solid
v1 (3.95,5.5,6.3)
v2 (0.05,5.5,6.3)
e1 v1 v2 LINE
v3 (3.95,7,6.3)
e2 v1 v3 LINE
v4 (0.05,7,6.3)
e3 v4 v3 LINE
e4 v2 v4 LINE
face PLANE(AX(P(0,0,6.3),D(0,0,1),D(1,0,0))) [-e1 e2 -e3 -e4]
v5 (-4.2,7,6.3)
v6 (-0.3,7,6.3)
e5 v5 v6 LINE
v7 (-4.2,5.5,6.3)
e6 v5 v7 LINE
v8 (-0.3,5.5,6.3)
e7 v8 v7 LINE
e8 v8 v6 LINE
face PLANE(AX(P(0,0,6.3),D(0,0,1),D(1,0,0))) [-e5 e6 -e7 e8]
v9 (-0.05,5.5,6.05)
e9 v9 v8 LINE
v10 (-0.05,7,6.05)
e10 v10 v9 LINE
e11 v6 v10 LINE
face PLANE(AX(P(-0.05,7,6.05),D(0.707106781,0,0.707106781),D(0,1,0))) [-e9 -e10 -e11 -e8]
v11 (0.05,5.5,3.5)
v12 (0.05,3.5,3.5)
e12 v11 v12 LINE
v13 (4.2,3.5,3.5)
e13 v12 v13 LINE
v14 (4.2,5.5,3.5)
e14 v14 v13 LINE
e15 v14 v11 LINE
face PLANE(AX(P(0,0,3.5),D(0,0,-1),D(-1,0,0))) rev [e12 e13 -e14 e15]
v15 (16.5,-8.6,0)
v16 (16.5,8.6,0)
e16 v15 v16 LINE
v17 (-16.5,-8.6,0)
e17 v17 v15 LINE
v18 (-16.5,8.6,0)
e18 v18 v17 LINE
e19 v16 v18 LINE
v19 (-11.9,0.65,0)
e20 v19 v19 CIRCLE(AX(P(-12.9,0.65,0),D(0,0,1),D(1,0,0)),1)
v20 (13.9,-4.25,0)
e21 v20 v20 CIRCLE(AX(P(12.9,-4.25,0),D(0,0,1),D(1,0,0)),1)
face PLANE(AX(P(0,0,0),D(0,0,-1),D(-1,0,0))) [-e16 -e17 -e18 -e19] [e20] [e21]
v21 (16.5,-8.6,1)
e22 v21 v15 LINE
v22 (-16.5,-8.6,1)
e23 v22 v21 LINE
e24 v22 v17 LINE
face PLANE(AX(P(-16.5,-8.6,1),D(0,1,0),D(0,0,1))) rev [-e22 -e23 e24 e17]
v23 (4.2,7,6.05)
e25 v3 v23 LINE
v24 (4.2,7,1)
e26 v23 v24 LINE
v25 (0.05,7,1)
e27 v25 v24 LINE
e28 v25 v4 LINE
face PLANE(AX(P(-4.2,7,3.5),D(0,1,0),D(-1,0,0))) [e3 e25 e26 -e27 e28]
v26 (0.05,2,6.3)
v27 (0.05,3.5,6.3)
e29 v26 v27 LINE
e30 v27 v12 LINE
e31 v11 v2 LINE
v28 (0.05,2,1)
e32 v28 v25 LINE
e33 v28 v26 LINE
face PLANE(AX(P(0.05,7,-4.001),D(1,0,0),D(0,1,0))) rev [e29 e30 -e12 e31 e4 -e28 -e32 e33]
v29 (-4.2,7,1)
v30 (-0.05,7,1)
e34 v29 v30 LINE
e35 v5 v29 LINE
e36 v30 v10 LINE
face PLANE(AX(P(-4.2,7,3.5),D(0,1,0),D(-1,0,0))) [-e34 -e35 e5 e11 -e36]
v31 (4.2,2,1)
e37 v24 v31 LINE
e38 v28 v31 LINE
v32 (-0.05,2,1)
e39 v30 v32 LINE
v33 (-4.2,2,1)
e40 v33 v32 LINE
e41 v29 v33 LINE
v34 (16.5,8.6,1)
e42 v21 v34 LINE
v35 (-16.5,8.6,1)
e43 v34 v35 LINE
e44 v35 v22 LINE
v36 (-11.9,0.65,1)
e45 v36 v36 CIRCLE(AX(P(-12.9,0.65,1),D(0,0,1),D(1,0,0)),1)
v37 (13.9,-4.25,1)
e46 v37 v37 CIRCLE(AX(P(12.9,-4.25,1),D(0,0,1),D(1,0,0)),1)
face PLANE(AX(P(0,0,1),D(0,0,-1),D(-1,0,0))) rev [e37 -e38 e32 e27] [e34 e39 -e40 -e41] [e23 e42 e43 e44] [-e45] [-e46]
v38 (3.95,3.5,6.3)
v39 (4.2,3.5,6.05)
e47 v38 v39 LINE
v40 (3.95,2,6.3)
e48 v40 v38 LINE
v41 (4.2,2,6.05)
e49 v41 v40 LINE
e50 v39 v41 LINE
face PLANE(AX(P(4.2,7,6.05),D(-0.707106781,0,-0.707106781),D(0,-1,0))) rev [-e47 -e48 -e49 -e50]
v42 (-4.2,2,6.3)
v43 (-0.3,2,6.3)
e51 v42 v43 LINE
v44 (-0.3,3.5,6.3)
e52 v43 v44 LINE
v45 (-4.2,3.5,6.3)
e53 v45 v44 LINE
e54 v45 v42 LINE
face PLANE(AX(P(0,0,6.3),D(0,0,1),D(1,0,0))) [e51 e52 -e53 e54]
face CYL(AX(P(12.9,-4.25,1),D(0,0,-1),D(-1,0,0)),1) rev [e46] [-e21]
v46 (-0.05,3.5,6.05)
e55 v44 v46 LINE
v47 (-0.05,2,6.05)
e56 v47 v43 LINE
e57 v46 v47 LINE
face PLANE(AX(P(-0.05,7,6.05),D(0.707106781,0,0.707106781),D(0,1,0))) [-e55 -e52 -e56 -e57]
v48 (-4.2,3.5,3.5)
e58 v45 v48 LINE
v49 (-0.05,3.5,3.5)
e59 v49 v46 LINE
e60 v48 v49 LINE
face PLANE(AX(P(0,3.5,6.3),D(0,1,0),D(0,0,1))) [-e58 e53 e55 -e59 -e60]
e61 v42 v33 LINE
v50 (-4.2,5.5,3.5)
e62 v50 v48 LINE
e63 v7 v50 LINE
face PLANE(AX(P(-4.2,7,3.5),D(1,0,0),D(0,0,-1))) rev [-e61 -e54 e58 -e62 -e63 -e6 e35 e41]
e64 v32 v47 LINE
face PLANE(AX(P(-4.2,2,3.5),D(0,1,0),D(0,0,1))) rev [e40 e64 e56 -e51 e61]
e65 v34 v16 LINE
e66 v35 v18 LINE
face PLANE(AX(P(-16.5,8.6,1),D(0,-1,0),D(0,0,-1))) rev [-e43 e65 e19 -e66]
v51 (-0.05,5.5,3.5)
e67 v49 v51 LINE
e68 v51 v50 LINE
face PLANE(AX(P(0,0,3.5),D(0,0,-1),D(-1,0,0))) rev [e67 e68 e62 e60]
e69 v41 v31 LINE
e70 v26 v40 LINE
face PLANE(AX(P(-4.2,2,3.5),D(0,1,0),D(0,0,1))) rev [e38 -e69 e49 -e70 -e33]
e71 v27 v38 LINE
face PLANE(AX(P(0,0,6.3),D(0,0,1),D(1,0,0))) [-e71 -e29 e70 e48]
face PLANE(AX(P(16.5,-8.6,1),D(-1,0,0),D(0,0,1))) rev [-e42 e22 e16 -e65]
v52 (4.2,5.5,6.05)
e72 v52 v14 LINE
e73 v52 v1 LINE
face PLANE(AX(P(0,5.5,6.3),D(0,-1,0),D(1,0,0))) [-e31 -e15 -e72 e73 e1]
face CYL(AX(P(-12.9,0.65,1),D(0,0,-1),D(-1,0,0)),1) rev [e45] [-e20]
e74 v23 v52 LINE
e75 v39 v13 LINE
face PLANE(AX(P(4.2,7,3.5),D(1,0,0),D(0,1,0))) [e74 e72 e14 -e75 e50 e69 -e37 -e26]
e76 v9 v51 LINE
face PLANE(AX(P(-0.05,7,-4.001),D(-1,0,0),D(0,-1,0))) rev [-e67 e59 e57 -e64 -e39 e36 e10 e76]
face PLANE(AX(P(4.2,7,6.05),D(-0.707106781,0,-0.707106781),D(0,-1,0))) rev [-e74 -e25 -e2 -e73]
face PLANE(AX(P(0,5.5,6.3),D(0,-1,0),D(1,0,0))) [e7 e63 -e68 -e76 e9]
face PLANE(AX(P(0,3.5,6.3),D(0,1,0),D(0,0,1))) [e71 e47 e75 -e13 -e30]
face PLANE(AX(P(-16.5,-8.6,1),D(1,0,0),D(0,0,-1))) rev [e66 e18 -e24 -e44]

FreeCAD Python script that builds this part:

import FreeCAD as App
import Part
import Sketcher

V = App.Vector


def edges_at(feature, points):
    """Names of the edges that pass closest to the given points."""
    edges = feature.Shape.Edges
    near = lambda p: min(range(len(edges)), key=lambda i: edges[i].distToShape(Part.Vertex(*p))[0])
    return sorted({f"Edge{near(p) + 1}" for p in points})


def add_polygon(sketch, points):
    """Adds a closed chain of lines whose ends are joined by coincident constraints."""
    first, n = sketch.GeometryCount, len(points)
    for a, b in zip(points, points[1:] + points[:1]):
        sketch.addGeometry(Part.LineSegment(App.Vector(*a, 0), App.Vector(*b, 0)), False)
    for i in range(n):
        sketch.addConstraint(Sketcher.Constraint("Coincident", first + i, 2, first + (i + 1) % n, 1))

doc = App.newDocument("Part")
body = doc.addObject("PartDesign::Body", "Body")

# Sketch on XY plane
sketch1 = body.newObject("Sketcher::SketchObject", "Sketch")
sketch1.AttachmentSupport = (doc.getObject("XY_Plane"), [""])
sketch1.MapMode = "FlatFace"
add_polygon(sketch1, [(-16.5, 8.6), (-16.5, -8.6), (16.5, -8.6), (16.5, 8.6)])  # lines 0-3
sketch1.addGeometry(Part.Circle(V(12.9, -4.2, 0), V(0, 0, 1), 1), False)  # 4
sketch1.addGeometry(Part.Circle(V(-12.9, 0.7, 0), V(0, 0, 1), 1), False)  # 5
sketch1.addConstraint([
    Sketcher.Constraint("Vertical", 0),
    Sketcher.Constraint("Horizontal", 1),
    Sketcher.Constraint("Vertical", 2),
    Sketcher.Constraint("Horizontal", 3),
    Sketcher.Constraint("Equal", 4, 5),
    Sketcher.Constraint("Symmetric", 0, 2, 2, 2, -1, 1),
    Sketcher.Constraint("Diameter", 4, 2.0),
    Sketcher.Constraint("DistanceX", 1, 1, 1, 2, 33.0),
    Sketcher.Constraint("DistanceY", 0, 2, 0, 1, 17.2),
    Sketcher.Constraint("DistanceX", -1, 1, 4, 3, 12.9),
    Sketcher.Constraint("DistanceX", 5, 3, -1, 1, 12.9),
    Sketcher.Constraint("DistanceY", 4, 3, 5, 3, 4.9),
    Sketcher.Constraint("DistanceY", 4, 3, -1, 1, 4.25),
])
pad1 = body.newObject("PartDesign::Pad", "Pad")
pad1.Profile = sketch1
pad1.Length = 1

# Sketch on XY plane
sketch2 = body.newObject("Sketcher::SketchObject", "Sketch001")
sketch2.AttachmentSupport = (doc.getObject("XY_Plane"), [""])
sketch2.MapMode = "FlatFace"
sketch2.AttachmentOffset = App.Placement(V(0, 0, 1), App.Rotation())
add_polygon(sketch2, [(-4, 7), (-4, 2), (4, 2), (4, 7)])  # lines 0-3
sketch2.addConstraint([
    Sketcher.Constraint("Vertical", 0),
    Sketcher.Constraint("Horizontal", 1),
    Sketcher.Constraint("Vertical", 2),
    Sketcher.Constraint("Horizontal", 3),
    Sketcher.Constraint("DistanceY", 0, 2, 0, 1, 5.0),
    Sketcher.Constraint("DistanceX", 1, 1, 1, 2, 8.4),
    Sketcher.Constraint("DistanceY", -1, 1, 0, 2, 2.0),
    Sketcher.Constraint("DistanceX", 0, 2, -1, 1, 4.2),
])
pad2 = body.newObject("PartDesign::Pad", "Pad001")
pad2.Profile = sketch2
pad2.Length = 2.5

# Sketch on XY plane
sketch3 = body.newObject("Sketcher::SketchObject", "Sketch002")
sketch3.AttachmentSupport = (doc.getObject("XY_Plane"), [""])
sketch3.MapMode = "FlatFace"
sketch3.AttachmentOffset = App.Placement(V(0, 0, 1), App.Rotation())
add_polygon(sketch3, [(-4.2, 3.5), (-4.2, 2), (4.2, 2), (4.2, 3.5)])  # lines 0-3
add_polygon(sketch3, [(-4.2, 7), (-4.2, 5.5), (4.2, 5.5), (4.2, 7)])  # lines 4-7
sketch3.addConstraint([
    Sketcher.Constraint("Vertical", 0),
    Sketcher.Constraint("Horizontal", 1),
    Sketcher.Constraint("Vertical", 2),
    Sketcher.Constraint("Horizontal", 3),
    Sketcher.Constraint("Vertical", 4),
    Sketcher.Constraint("Horizontal", 5),
    Sketcher.Constraint("Vertical", 6),
    Sketcher.Constraint("Horizontal", 7),
    Sketcher.Constraint("Vertical", 3, 2, 4, 2),
    Sketcher.Constraint("Vertical", 2, 2, 5, 2),
    Sketcher.Constraint("Equal", 2, 4),
    Sketcher.Constraint("DistanceX", 1, 1, 1, 2, 8.4),
    Sketcher.Constraint("DistanceY", 0, 2, 0, 1, 1.5),
    Sketcher.Constraint("DistanceY", -1, 1, 0, 2, 2.0),
    Sketcher.Constraint("DistanceY", -1, 1, 6, 2, 7.0),
    Sketcher.Constraint("DistanceX", 0, 2, -1, 1, 4.2),
])
pad3 = body.newObject("PartDesign::Pad", "Pad002")
pad3.Profile = sketch3
pad3.Length = 5.3

# Sketch on XY plane
sketch4 = body.newObject("Sketcher::SketchObject", "Sketch003")
sketch4.AttachmentSupport = (doc.getObject("XY_Plane"), [""])
sketch4.MapMode = "FlatFace"
sketch4.AttachmentOffset = App.Placement(V(0, 0, 1), App.Rotation())
add_polygon(sketch4, [(-0.05, 7), (-0.05, 2), (0.05, 2), (0.05, 7)])  # lines 0-3
sketch4.addConstraint([
    Sketcher.Constraint("Vertical", 0),
    Sketcher.Constraint("Horizontal", 1),
    Sketcher.Constraint("Vertical", 2),
    Sketcher.Constraint("Horizontal", 3),
    Sketcher.Constraint("DistanceY", 0, 2, 0, 1, 5.0),
    Sketcher.Constraint("DistanceX", 1, 1, 1, 2, 0.1),
    Sketcher.Constraint("DistanceY", -1, 1, 0, 2, 2.0),
    Sketcher.Constraint("DistanceX", 0, 2, -1, 1, 0.05),
])
pocket1 = body.newObject("PartDesign::Pocket", "Pocket")
pocket1.Profile = sketch4
pocket1.Length = 5.3
pocket1.Reversed = True
doc.recompute()

chamfer = body.newObject("PartDesign::Chamfer", "Chamfer")
chamfer.Base = (pocket1, edges_at(pocket1, [
    (4.2, 2.75, 6.3),
    (4.2, 6.25, 6.3),
    (-0.05, 2.75, 6.3),
    (-0.05, 6.25, 6.3),
]))
chamfer.Size = 0.25

doc.recompute()
